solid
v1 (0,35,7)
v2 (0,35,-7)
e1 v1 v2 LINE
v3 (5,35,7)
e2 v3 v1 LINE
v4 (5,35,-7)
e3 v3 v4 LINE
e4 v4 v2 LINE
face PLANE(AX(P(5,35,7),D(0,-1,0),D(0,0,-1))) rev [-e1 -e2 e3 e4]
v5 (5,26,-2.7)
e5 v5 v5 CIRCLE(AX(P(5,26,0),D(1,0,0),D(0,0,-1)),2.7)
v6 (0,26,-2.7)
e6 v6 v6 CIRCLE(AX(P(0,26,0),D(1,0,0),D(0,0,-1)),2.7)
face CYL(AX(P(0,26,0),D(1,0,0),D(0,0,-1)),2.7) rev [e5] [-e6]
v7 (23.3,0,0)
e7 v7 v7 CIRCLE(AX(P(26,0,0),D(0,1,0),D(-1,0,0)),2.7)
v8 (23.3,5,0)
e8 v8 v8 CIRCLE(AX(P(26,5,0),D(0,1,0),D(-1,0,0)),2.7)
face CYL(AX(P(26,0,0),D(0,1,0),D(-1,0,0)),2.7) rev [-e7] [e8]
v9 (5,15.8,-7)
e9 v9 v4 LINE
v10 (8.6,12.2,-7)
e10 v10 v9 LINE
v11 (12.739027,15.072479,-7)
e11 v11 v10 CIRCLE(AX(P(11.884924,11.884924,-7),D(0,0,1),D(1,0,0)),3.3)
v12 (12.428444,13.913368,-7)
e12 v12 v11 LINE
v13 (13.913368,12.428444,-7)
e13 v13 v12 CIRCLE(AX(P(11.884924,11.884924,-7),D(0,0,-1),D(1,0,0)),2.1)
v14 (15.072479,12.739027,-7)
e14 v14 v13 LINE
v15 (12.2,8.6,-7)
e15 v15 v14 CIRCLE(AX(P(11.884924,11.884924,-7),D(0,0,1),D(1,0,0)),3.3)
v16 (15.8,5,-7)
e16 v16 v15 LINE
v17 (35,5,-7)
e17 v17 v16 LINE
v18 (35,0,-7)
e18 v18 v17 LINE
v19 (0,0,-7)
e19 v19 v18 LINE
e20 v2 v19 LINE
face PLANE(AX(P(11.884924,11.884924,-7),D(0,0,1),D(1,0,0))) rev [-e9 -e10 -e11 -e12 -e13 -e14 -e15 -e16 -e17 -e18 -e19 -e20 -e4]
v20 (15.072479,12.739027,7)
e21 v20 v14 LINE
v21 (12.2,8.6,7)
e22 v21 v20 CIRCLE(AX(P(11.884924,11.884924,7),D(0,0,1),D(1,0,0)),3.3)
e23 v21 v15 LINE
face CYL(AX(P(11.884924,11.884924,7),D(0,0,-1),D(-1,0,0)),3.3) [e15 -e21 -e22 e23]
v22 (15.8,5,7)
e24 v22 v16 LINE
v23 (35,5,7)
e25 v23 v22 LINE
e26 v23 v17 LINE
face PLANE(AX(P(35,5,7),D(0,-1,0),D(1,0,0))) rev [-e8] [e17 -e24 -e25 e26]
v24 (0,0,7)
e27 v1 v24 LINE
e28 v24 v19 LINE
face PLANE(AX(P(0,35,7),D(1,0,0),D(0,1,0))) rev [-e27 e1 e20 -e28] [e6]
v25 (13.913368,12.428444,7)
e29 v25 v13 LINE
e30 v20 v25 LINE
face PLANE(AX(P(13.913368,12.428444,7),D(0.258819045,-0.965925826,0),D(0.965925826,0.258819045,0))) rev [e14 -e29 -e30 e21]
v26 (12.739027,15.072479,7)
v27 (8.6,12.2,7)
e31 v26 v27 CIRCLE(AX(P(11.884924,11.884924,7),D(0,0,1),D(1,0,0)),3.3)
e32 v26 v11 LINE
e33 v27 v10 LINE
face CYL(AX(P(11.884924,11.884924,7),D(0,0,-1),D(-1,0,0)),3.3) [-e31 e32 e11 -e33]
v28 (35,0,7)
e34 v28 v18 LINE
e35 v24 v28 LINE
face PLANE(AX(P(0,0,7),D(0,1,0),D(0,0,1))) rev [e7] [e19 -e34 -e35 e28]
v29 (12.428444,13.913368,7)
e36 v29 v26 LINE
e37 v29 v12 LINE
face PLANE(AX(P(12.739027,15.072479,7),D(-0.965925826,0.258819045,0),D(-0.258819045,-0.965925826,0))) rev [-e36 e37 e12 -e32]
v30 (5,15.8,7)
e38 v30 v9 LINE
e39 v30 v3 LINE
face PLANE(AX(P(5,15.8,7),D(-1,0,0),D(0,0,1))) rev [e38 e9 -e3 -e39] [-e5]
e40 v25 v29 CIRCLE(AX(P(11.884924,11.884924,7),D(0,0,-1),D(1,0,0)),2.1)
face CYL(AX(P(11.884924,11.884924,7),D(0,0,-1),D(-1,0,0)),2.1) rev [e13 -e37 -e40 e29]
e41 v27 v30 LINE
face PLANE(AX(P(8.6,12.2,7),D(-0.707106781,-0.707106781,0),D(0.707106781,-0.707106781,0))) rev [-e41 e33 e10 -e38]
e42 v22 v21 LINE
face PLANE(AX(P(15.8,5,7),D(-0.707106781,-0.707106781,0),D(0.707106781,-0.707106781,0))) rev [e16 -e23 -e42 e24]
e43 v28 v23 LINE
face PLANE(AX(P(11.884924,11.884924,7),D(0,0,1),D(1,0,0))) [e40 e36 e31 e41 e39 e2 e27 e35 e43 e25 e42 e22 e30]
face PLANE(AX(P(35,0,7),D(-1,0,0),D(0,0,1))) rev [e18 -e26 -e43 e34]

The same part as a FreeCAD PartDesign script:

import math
import FreeCAD as App
import Part
import Sketcher

V = App.Vector
Q = App.Units.Quantity

doc = App.newDocument("Part")
params = doc.addObject("Spreadsheet::Sheet", "Params")
for row, (alias, value) in enumerate([
    ("sketch1_radius", "3.3 mm"),
    ("sketch1_radius2", "2.1 mm"),
    ("sketch1_width", "35 mm"),
    ("sketch1_width2", "5 mm"),
    ("sketch1_width3", "19.2 mm"),
    ("pad1_length", "14 mm"),
    ("sketch2_diameter", "5.4 mm"),
    ("sketch3_diameter", "5.4 mm"),
], start=1):
    params.set(f"A{row}", alias)
    params.set(f"B{row}", "=" + value)
    params.setAlias(f"B{row}", alias)

body = doc.addObject("PartDesign::Body", "Body")

# Sketch on XY plane
sketch1 = doc.addObject("Sketcher::SketchObject", "Sketch")
body.addObject(sketch1)
sketch1.AttachmentSupport = (doc.XY_Plane, [""])
sketch1.MapMode = "FlatFace"
sketch1.addGeometry(Part.LineSegment(V(0, 35, 0), V(0, 0, 0)), False)
sketch1.addGeometry(Part.LineSegment(V(0, 0, 0), V(35, 0, 0)), False)
sketch1.addGeometry(Part.LineSegment(V(35, 0, 0), V(35, 5, 0)), False)
sketch1.addGeometry(Part.LineSegment(V(35, 5, 0), V(15.8, 5, 0)), False)
sketch1.addGeometry(Part.LineSegment(V(15.8, 5, 0), V(12.2, 8.6, 0)), False)
sketch1.addGeometry(Part.ArcOfCircle(Part.Circle(V(11.9, 11.9, 0), V(0, 0, 1), 3.3), math.radians(-85), math.radians(15)), False)
sketch1.addGeometry(Part.LineSegment(V(15.1, 12.7, 0), V(13.9, 12.4, 0)), False)
sketch1.addGeometry(Part.ArcOfCircle(Part.Circle(V(11.9, 11.9, 0), V(0, 0, 1), 2.1), math.radians(75), math.radians(375)), False)
sketch1.addGeometry(Part.LineSegment(V(12.4, 13.9, 0), V(12.7, 15.1, 0)), False)
sketch1.addGeometry(Part.ArcOfCircle(Part.Circle(V(11.9, 11.9, 0), V(0, 0, 1), 3.3), math.radians(75), math.radians(175)), False)
sketch1.addGeometry(Part.LineSegment(V(8.6, 12.2, 0), V(5, 15.8, 0)), False)
sketch1.addGeometry(Part.LineSegment(V(5, 15.8, 0), V(5, 35, 0)), False)
sketch1.addGeometry(Part.LineSegment(V(5, 35, 0), V(0, 35, 0)), False)
sketch1.addConstraint(Sketcher.Constraint("Coincident", 0, 2, 1, 1))
sketch1.addConstraint(Sketcher.Constraint("Coincident", 1, 2, 2, 1))
sketch1.addConstraint(Sketcher.Constraint("Coincident", 2, 2, 3, 1))
sketch1.addConstraint(Sketcher.Constraint("Coincident", 3, 2, 4, 1))
sketch1.addConstraint(Sketcher.Constraint("Coincident", 4, 2, 5, 1))
sketch1.addConstraint(Sketcher.Constraint("Coincident", 5, 2, 6, 1))
sketch1.addConstraint(Sketcher.Constraint("Coincident", 6, 2, 7, 2))
sketch1.addConstraint(Sketcher.Constraint("Coincident", 7, 1, 8, 1))
sketch1.addConstraint(Sketcher.Constraint("Coincident", 8, 2, 9, 1))
sketch1.addConstraint(Sketcher.Constraint("Coincident", 9, 2, 10, 1))
sketch1.addConstraint(Sketcher.Constraint("Coincident", 10, 2, 11, 1))
sketch1.addConstraint(Sketcher.Constraint("Coincident", 11, 2, 12, 1))
sketch1.addConstraint(Sketcher.Constraint("Coincident", 12, 2, 0, 1))
sketch1.addConstraint(Sketcher.Constraint("Vertical", 0))
sketch1.addConstraint(Sketcher.Constraint("Horizontal", 1))
sketch1.addConstraint(Sketcher.Constraint("Vertical", 2))
sketch1.addConstraint(Sketcher.Constraint("Horizontal", 3))
sketch1.addConstraint(Sketcher.Constraint("Vertical", 11))
sketch1.addConstraint(Sketcher.Constraint("Horizontal", 12))
sketch1.addConstraint(Sketcher.Constraint("Coincident", 0, 2, -1, 1))
sketch1.addConstraint(Sketcher.Constraint("Coincident", 7, 3, 5, 3))
sketch1.addConstraint(Sketcher.Constraint("Coincident", 9, 3, 5, 3))
sketch1.addConstraint(Sketcher.Constraint("Equal", 5, 9))
sketch1.addConstraint(Sketcher.Constraint("Parallel", 4, 10))
sketch1.addConstraint(Sketcher.Constraint("Equal", 1, 0))
sketch1.addConstraint(Sketcher.Constraint("Equal", 12, 2))
sketch1.addConstraint(Sketcher.Constraint("Equal", 3, 11))
sketch1.addConstraint(Sketcher.Constraint("Equal", 4, 10))
sketch1.addConstraint(Sketcher.Constraint("Radius", 5, Q("3.3 mm")))
sketch1.addConstraint(Sketcher.Constraint("Radius", 7, Q("2.1 mm")))
sketch1.addConstraint(Sketcher.Constraint("DistanceX", 1, 1, 1, 2, Q("35 mm")))
sketch1.addConstraint(Sketcher.Constraint("DistanceX", 12, 2, 12, 1, Q("5 mm")))
sketch1.addConstraint(Sketcher.Constraint("Angle", 4, Q("135 deg")))
sketch1.addConstraint(Sketcher.Constraint("Angle", 6, Q("-165 deg")))
sketch1.addConstraint(Sketcher.Constraint("Angle", 8, Q("75 deg")))
sketch1.addConstraint(Sketcher.Constraint("DistanceX", 3, 2, 3, 1, Q("19.2 mm")))
sketch1.addConstraint(Sketcher.Constraint("DistanceX", -1, 1, 4, 2, Q("12.2 mm")))
sketch1.addConstraint(Sketcher.Constraint("DistanceX", -1, 1, 5, 2, Q("15.072479 mm")))
sketch1.addConstraint(Sketcher.Constraint("DistanceY", -1, 1, 7, 1, Q("13.913368 mm")))
sketch1.setExpression("Constraints[28]", "Params.sketch1_radius")
sketch1.setExpression("Constraints[29]", "Params.sketch1_radius2")
sketch1.setExpression("Constraints[30]", "Params.sketch1_width")
sketch1.setExpression("Constraints[31]", "Params.sketch1_width2")
sketch1.setExpression("Constraints[35]", "Params.sketch1_width3")
pad1 = doc.addObject("PartDesign::Pad", "Pad")
body.addObject(pad1)
pad1.Profile = sketch1
pad1.setExpression("Length", "Params.pad1_length")
pad1.Midplane = True

# Sketch on XZ plane
sketch2 = doc.addObject("Sketcher::SketchObject", "Sketch001")
body.addObject(sketch2)
sketch2.AttachmentSupport = (doc.XZ_Plane, [""])
sketch2.MapMode = "FlatFace"
sketch2.AttachmentOffset = App.Placement(V(0, 0, -5), App.Rotation())
sketch2.addGeometry(Part.Circle(V(26, 0, 0), V(0, 0, 1), 2.7), False)
sketch2.addConstraint(Sketcher.Constraint("PointOnObject", 0, 3, -1))
sketch2.addConstraint(Sketcher.Constraint("Diameter", 0, Q("5.4 mm")))
sketch2.addConstraint(Sketcher.Constraint("DistanceX", -1, 1, 0, 3, Q("26 mm")))
sketch2.setExpression("Constraints[1]", "Params.sketch2_diameter")
pocket1 = doc.addObject("PartDesign::Pocket", "Pocket")
body.addObject(pocket1)
pocket1.Profile = sketch2
pocket1.Type = "ThroughAll"
pocket1.Reversed = True

# Sketch on YZ plane
sketch3 = doc.addObject("Sketcher::SketchObject", "Sketch002")
body.addObject(sketch3)
sketch3.AttachmentSupport = (doc.YZ_Plane, [""])
sketch3.MapMode = "FlatFace"
sketch3.AttachmentOffset = App.Placement(V(0, 0, 5), App.Rotation())
sketch3.addGeometry(Part.Circle(V(26, 0, 0), V(0, 0, 1), 2.7), False)
sketch3.addConstraint(Sketcher.Constraint("PointOnObject", 0, 3, -1))
sketch3.addConstraint(Sketcher.Constraint("Diameter", 0, Q("5.4 mm")))
sketch3.addConstraint(Sketcher.Constraint("DistanceX", -1, 1, 0, 3, Q("26 mm")))
sketch3.setExpression("Constraints[1]", "Params.sketch3_diameter")
pocket2 = doc.addObject("PartDesign::Pocket", "Pocket001")
body.addObject(pocket2)
pocket2.Profile = sketch3
pocket2.Type = "ThroughAll"

doc.recompute()
